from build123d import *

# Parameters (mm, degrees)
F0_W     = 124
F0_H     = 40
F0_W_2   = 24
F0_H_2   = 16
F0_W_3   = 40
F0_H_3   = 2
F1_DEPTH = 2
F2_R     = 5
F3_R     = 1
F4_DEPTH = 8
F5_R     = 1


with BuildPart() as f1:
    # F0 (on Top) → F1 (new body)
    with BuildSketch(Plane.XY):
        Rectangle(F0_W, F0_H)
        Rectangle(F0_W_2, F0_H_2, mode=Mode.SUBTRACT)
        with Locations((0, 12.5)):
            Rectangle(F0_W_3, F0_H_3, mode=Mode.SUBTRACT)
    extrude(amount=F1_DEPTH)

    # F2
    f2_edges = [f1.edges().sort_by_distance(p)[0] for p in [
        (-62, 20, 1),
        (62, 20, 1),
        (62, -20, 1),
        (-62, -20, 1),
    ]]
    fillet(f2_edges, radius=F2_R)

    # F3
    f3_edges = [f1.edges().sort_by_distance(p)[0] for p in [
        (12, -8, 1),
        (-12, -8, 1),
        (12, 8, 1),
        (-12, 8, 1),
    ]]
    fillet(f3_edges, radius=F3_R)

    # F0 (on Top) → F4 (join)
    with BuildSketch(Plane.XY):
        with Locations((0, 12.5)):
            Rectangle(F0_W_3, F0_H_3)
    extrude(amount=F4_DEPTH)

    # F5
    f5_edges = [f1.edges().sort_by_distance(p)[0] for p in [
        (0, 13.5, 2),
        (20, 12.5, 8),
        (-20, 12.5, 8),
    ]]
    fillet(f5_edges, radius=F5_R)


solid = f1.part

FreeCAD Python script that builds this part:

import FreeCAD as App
import Part
import Sketcher


def edges_at(feature, points):
    """Names of the edges that pass closest to the given points."""
    edges = feature.Shape.Edges
    near = lambda p: min(range(len(edges)), key=lambda i: edges[i].distToShape(Part.Vertex(*p))[0])
    return sorted({f"Edge{near(p) + 1}" for p in points})

doc = App.newDocument("Part")
params = doc.addObject("Spreadsheet::Sheet", "Params")
for row, (alias, value) in enumerate([
    ("sketch1_width", "124 mm"),
    ("sketch1_width2", "24 mm"),
    ("sketch1_width3", "40 mm"),
    ("sketch1_height", "16 mm"),
    ("sketch1_height2", "2 mm"),
    ("pad1_length", "2 mm"),
    ("fillet_radius", "5 mm"),
    ("fillet2_radius", "1 mm"),
    ("sketch2_width", "40 mm"),
    ("sketch2_height", "2 mm"),
    ("pad2_length", "8 mm"),
    ("fillet3_radius", "1 mm"),
], start=1):
    params.set(f"A{row}", alias)
    params.set(f"B{row}", "=" + value)
    params.setAlias(f"B{row}", alias)

body = doc.addObject("PartDesign::Body", "Body")

# Sketch on XY plane
sketch1 = body.newObject("Sketcher::SketchObject", "Sketch")
sketch1.AttachmentSupport = (doc.getObject("XY_Plane"), [""])
sketch1.MapMode = "FlatFace"
sketch1.addGeometry(Part.LineSegment(App.Vector(-62, 20, 0), App.Vector(-62, -20, 0)), False)
sketch1.addGeometry(Part.LineSegment(App.Vector(-62, -20, 0), App.Vector(62, -20, 0)), False)
sketch1.addGeometry(Part.LineSegment(App.Vector(62, -20, 0), App.Vector(62, 20, 0)), False)
sketch1.addGeometry(Part.LineSegment(App.Vector(62, 20, 0), App.Vector(-62, 20, 0)), False)
sketch1.addGeometry(Part.LineSegment(App.Vector(12, -8, 0), App.Vector(-12, -8, 0)), False)
sketch1.addGeometry(Part.LineSegment(App.Vector(-12, -8, 0), App.Vector(-12, 8, 0)), False)
sketch1.addGeometry(Part.LineSegment(App.Vector(-12, 8, 0), App.Vector(12, 8, 0)), False)
sketch1.addGeometry(Part.LineSegment(App.Vector(12, 8, 0), App.Vector(12, -8, 0)), False)
sketch1.addGeometry(Part.LineSegment(App.Vector(20, 11.5, 0), App.Vector(-20, 11.5, 0)), False)
sketch1.addGeometry(Part.LineSegment(App.Vector(-20, 11.5, 0), App.Vector(-20, 13.5, 0)), False)
sketch1.addGeometry(Part.LineSegment(App.Vector(-20, 13.5, 0), App.Vector(20, 13.5, 0)), False)
sketch1.addGeometry(Part.LineSegment(App.Vector(20, 13.5, 0), App.Vector(20, 11.5, 0)), False)
sketch1.addConstraint(Sketcher.Constraint("Coincident", 0, 2, 1, 1))
sketch1.addConstraint(Sketcher.Constraint("Coincident", 1, 2, 2, 1))
sketch1.addConstraint(Sketcher.Constraint("Coincident", 2, 2, 3, 1))
sketch1.addConstraint(Sketcher.Constraint("Coincident", 3, 2, 0, 1))
sketch1.addConstraint(Sketcher.Constraint("Coincident", 4, 2, 5, 1))
sketch1.addConstraint(Sketcher.Constraint("Coincident", 5, 2, 6, 1))
sketch1.addConstraint(Sketcher.Constraint("Coincident", 6, 2, 7, 1))
sketch1.addConstraint(Sketcher.Constraint("Coincident", 7, 2, 4, 1))
sketch1.addConstraint(Sketcher.Constraint("Coincident", 8, 2, 9, 1))
sketch1.addConstraint(Sketcher.Constraint("Coincident", 9, 2, 10, 1))
sketch1.addConstraint(Sketcher.Constraint("Coincident", 10, 2, 11, 1))
sketch1.addConstraint(Sketcher.Constraint("Coincident", 11, 2, 8, 1))
sketch1.addConstraint(Sketcher.Constraint("Vertical", 0))
sketch1.addConstraint(Sketcher.Constraint("Horizontal", 1))
sketch1.addConstraint(Sketcher.Constraint("Vertical", 2))
sketch1.addConstraint(Sketcher.Constraint("Horizontal", 3))
sketch1.addConstraint(Sketcher.Constraint("Horizontal", 4))
sketch1.addConstraint(Sketcher.Constraint("Vertical", 5))
sketch1.addConstraint(Sketcher.Constraint("Horizontal", 6))
sketch1.addConstraint(Sketcher.Constraint("Vertical", 7))
sketch1.addConstraint(Sketcher.Constraint("Horizontal", 8))
sketch1.addConstraint(Sketcher.Constraint("Vertical", 9))
sketch1.addConstraint(Sketcher.Constraint("Horizontal", 10))
sketch1.addConstraint(Sketcher.Constraint("Vertical", 11))
sketch1.addConstraint(Sketcher.Constraint("Symmetric", 0, 2, 2, 2, -1, 1))
sketch1.addConstraint(Sketcher.Constraint("Symmetric", 4, 2, 6, 2, -1, 1))
sketch1.addConstraint(Sketcher.Constraint("Equal", 10, 0))
sketch1.addConstraint(Sketcher.Constraint("DistanceX", 1, 1, 1, 2, 124.0))
sketch1.addConstraint(Sketcher.Constraint("DistanceX", 4, 2, 4, 1, 24.0))
sketch1.addConstraint(Sketcher.Constraint("DistanceX", 8, 2, 8, 1, 40.0))
sketch1.addConstraint(Sketcher.Constraint("DistanceY", 5, 1, 5, 2, 16.0))
sketch1.addConstraint(Sketcher.Constraint("DistanceY", 9, 1, 9, 2, 2.0))
sketch1.addConstraint(Sketcher.Constraint("DistanceX", 8, 2, -1, 1, 20.0))
sketch1.addConstraint(Sketcher.Constraint("DistanceY", -1, 1, 8, 2, 11.5))
sketch1.setExpression("Constraints[27]", "Params.sketch1_width")
sketch1.setExpression("Constraints[28]", "Params.sketch1_width2")
sketch1.setExpression("Constraints[29]", "Params.sketch1_width3")
sketch1.setExpression("Constraints[30]", "Params.sketch1_height")
sketch1.setExpression("Constraints[31]", "Params.sketch1_height2")
pad1 = body.newObject("PartDesign::Pad", "Pad")
pad1.Profile = sketch1
pad1.setExpression("Length", "Params.pad1_length")
doc.recompute()

fillet = body.newObject("PartDesign::Fillet", "Fillet")
fillet.Base = (pad1, edges_at(pad1, [
    (-62, 20, 1),
    (62, 20, 1),
    (62, -20, 1),
    (-62, -20, 1),
]))
fillet.setExpression("Radius", "Params.fillet_radius")
doc.recompute()

fillet2 = body.newObject("PartDesign::Fillet", "Fillet001")
fillet2.Base = (fillet, edges_at(fillet, [
    (12, -8, 1),
    (-12, -8, 1),
    (12, 8, 1),
    (-12, 8, 1),
]))
fillet2.setExpression("Radius", "Params.fillet2_radius")

# Sketch on XY plane
sketch2 = body.newObject("Sketcher::SketchObject", "Sketch001")
sketch2.AttachmentSupport = (doc.getObject("XY_Plane"), [""])
sketch2.MapMode = "FlatFace"
sketch2.addGeometry(Part.LineSegment(App.Vector(-20, 13.5, 0), App.Vector(-20, 11.5, 0)), False)
sketch2.addGeometry(Part.LineSegment(App.Vector(-20, 11.5, 0), App.Vector(20, 11.5, 0)), False)
sketch2.addGeometry(Part.LineSegment(App.Vector(20, 11.5, 0), App.Vector(20, 13.5, 0)), False)
sketch2.addGeometry(Part.LineSegment(App.Vector(20, 13.5, 0), App.Vector(-20, 13.5, 0)), False)
sketch2.addConstraint(Sketcher.Constraint("Coincident", 0, 2, 1, 1))
sketch2.addConstraint(Sketcher.Constraint("Coincident", 1, 2, 2, 1))
sketch2.addConstraint(Sketcher.Constraint("Coincident", 2, 2, 3, 1))
sketch2.addConstraint(Sketcher.Constraint("Coincident", 3, 2, 0, 1))
sketch2.addConstraint(Sketcher.Constraint("Vertical", 0))
sketch2.addConstraint(Sketcher.Constraint("Horizontal", 1))
sketch2.addConstraint(Sketcher.Constraint("Vertical", 2))
sketch2.addConstraint(Sketcher.Constraint("Horizontal", 3))
sketch2.addConstraint(Sketcher.Constraint("DistanceX", 1, 1, 1, 2, 40.0))
sketch2.addConstraint(Sketcher.Constraint("DistanceY", 0, 2, 0, 1, 2.0))
sketch2.addConstraint(Sketcher.Constraint("DistanceX", 0, 2, -1, 1, 20.0))
sketch2.addConstraint(Sketcher.Constraint("DistanceY", -1, 1, 0, 2, 11.5))
sketch2.setExpression("Constraints[8]", "Params.sketch2_width")
sketch2.setExpression("Constraints[9]", "Params.sketch2_height")
pad2 = body.newObject("PartDesign::Pad", "Pad001")
pad2.Profile = sketch2
pad2.setExpression("Length", "Params.pad2_length")
doc.recompute()

fillet3 = body.newObject("PartDesign::Fillet", "Fillet002")
fillet3.Base = (pad2, edges_at(pad2, [(0, 13.5, 2), (20, 12.5, 8), (-20, 12.5, 8)]))
fillet3.setExpression("Radius", "Params.fillet3_radius")

doc.recompute()
